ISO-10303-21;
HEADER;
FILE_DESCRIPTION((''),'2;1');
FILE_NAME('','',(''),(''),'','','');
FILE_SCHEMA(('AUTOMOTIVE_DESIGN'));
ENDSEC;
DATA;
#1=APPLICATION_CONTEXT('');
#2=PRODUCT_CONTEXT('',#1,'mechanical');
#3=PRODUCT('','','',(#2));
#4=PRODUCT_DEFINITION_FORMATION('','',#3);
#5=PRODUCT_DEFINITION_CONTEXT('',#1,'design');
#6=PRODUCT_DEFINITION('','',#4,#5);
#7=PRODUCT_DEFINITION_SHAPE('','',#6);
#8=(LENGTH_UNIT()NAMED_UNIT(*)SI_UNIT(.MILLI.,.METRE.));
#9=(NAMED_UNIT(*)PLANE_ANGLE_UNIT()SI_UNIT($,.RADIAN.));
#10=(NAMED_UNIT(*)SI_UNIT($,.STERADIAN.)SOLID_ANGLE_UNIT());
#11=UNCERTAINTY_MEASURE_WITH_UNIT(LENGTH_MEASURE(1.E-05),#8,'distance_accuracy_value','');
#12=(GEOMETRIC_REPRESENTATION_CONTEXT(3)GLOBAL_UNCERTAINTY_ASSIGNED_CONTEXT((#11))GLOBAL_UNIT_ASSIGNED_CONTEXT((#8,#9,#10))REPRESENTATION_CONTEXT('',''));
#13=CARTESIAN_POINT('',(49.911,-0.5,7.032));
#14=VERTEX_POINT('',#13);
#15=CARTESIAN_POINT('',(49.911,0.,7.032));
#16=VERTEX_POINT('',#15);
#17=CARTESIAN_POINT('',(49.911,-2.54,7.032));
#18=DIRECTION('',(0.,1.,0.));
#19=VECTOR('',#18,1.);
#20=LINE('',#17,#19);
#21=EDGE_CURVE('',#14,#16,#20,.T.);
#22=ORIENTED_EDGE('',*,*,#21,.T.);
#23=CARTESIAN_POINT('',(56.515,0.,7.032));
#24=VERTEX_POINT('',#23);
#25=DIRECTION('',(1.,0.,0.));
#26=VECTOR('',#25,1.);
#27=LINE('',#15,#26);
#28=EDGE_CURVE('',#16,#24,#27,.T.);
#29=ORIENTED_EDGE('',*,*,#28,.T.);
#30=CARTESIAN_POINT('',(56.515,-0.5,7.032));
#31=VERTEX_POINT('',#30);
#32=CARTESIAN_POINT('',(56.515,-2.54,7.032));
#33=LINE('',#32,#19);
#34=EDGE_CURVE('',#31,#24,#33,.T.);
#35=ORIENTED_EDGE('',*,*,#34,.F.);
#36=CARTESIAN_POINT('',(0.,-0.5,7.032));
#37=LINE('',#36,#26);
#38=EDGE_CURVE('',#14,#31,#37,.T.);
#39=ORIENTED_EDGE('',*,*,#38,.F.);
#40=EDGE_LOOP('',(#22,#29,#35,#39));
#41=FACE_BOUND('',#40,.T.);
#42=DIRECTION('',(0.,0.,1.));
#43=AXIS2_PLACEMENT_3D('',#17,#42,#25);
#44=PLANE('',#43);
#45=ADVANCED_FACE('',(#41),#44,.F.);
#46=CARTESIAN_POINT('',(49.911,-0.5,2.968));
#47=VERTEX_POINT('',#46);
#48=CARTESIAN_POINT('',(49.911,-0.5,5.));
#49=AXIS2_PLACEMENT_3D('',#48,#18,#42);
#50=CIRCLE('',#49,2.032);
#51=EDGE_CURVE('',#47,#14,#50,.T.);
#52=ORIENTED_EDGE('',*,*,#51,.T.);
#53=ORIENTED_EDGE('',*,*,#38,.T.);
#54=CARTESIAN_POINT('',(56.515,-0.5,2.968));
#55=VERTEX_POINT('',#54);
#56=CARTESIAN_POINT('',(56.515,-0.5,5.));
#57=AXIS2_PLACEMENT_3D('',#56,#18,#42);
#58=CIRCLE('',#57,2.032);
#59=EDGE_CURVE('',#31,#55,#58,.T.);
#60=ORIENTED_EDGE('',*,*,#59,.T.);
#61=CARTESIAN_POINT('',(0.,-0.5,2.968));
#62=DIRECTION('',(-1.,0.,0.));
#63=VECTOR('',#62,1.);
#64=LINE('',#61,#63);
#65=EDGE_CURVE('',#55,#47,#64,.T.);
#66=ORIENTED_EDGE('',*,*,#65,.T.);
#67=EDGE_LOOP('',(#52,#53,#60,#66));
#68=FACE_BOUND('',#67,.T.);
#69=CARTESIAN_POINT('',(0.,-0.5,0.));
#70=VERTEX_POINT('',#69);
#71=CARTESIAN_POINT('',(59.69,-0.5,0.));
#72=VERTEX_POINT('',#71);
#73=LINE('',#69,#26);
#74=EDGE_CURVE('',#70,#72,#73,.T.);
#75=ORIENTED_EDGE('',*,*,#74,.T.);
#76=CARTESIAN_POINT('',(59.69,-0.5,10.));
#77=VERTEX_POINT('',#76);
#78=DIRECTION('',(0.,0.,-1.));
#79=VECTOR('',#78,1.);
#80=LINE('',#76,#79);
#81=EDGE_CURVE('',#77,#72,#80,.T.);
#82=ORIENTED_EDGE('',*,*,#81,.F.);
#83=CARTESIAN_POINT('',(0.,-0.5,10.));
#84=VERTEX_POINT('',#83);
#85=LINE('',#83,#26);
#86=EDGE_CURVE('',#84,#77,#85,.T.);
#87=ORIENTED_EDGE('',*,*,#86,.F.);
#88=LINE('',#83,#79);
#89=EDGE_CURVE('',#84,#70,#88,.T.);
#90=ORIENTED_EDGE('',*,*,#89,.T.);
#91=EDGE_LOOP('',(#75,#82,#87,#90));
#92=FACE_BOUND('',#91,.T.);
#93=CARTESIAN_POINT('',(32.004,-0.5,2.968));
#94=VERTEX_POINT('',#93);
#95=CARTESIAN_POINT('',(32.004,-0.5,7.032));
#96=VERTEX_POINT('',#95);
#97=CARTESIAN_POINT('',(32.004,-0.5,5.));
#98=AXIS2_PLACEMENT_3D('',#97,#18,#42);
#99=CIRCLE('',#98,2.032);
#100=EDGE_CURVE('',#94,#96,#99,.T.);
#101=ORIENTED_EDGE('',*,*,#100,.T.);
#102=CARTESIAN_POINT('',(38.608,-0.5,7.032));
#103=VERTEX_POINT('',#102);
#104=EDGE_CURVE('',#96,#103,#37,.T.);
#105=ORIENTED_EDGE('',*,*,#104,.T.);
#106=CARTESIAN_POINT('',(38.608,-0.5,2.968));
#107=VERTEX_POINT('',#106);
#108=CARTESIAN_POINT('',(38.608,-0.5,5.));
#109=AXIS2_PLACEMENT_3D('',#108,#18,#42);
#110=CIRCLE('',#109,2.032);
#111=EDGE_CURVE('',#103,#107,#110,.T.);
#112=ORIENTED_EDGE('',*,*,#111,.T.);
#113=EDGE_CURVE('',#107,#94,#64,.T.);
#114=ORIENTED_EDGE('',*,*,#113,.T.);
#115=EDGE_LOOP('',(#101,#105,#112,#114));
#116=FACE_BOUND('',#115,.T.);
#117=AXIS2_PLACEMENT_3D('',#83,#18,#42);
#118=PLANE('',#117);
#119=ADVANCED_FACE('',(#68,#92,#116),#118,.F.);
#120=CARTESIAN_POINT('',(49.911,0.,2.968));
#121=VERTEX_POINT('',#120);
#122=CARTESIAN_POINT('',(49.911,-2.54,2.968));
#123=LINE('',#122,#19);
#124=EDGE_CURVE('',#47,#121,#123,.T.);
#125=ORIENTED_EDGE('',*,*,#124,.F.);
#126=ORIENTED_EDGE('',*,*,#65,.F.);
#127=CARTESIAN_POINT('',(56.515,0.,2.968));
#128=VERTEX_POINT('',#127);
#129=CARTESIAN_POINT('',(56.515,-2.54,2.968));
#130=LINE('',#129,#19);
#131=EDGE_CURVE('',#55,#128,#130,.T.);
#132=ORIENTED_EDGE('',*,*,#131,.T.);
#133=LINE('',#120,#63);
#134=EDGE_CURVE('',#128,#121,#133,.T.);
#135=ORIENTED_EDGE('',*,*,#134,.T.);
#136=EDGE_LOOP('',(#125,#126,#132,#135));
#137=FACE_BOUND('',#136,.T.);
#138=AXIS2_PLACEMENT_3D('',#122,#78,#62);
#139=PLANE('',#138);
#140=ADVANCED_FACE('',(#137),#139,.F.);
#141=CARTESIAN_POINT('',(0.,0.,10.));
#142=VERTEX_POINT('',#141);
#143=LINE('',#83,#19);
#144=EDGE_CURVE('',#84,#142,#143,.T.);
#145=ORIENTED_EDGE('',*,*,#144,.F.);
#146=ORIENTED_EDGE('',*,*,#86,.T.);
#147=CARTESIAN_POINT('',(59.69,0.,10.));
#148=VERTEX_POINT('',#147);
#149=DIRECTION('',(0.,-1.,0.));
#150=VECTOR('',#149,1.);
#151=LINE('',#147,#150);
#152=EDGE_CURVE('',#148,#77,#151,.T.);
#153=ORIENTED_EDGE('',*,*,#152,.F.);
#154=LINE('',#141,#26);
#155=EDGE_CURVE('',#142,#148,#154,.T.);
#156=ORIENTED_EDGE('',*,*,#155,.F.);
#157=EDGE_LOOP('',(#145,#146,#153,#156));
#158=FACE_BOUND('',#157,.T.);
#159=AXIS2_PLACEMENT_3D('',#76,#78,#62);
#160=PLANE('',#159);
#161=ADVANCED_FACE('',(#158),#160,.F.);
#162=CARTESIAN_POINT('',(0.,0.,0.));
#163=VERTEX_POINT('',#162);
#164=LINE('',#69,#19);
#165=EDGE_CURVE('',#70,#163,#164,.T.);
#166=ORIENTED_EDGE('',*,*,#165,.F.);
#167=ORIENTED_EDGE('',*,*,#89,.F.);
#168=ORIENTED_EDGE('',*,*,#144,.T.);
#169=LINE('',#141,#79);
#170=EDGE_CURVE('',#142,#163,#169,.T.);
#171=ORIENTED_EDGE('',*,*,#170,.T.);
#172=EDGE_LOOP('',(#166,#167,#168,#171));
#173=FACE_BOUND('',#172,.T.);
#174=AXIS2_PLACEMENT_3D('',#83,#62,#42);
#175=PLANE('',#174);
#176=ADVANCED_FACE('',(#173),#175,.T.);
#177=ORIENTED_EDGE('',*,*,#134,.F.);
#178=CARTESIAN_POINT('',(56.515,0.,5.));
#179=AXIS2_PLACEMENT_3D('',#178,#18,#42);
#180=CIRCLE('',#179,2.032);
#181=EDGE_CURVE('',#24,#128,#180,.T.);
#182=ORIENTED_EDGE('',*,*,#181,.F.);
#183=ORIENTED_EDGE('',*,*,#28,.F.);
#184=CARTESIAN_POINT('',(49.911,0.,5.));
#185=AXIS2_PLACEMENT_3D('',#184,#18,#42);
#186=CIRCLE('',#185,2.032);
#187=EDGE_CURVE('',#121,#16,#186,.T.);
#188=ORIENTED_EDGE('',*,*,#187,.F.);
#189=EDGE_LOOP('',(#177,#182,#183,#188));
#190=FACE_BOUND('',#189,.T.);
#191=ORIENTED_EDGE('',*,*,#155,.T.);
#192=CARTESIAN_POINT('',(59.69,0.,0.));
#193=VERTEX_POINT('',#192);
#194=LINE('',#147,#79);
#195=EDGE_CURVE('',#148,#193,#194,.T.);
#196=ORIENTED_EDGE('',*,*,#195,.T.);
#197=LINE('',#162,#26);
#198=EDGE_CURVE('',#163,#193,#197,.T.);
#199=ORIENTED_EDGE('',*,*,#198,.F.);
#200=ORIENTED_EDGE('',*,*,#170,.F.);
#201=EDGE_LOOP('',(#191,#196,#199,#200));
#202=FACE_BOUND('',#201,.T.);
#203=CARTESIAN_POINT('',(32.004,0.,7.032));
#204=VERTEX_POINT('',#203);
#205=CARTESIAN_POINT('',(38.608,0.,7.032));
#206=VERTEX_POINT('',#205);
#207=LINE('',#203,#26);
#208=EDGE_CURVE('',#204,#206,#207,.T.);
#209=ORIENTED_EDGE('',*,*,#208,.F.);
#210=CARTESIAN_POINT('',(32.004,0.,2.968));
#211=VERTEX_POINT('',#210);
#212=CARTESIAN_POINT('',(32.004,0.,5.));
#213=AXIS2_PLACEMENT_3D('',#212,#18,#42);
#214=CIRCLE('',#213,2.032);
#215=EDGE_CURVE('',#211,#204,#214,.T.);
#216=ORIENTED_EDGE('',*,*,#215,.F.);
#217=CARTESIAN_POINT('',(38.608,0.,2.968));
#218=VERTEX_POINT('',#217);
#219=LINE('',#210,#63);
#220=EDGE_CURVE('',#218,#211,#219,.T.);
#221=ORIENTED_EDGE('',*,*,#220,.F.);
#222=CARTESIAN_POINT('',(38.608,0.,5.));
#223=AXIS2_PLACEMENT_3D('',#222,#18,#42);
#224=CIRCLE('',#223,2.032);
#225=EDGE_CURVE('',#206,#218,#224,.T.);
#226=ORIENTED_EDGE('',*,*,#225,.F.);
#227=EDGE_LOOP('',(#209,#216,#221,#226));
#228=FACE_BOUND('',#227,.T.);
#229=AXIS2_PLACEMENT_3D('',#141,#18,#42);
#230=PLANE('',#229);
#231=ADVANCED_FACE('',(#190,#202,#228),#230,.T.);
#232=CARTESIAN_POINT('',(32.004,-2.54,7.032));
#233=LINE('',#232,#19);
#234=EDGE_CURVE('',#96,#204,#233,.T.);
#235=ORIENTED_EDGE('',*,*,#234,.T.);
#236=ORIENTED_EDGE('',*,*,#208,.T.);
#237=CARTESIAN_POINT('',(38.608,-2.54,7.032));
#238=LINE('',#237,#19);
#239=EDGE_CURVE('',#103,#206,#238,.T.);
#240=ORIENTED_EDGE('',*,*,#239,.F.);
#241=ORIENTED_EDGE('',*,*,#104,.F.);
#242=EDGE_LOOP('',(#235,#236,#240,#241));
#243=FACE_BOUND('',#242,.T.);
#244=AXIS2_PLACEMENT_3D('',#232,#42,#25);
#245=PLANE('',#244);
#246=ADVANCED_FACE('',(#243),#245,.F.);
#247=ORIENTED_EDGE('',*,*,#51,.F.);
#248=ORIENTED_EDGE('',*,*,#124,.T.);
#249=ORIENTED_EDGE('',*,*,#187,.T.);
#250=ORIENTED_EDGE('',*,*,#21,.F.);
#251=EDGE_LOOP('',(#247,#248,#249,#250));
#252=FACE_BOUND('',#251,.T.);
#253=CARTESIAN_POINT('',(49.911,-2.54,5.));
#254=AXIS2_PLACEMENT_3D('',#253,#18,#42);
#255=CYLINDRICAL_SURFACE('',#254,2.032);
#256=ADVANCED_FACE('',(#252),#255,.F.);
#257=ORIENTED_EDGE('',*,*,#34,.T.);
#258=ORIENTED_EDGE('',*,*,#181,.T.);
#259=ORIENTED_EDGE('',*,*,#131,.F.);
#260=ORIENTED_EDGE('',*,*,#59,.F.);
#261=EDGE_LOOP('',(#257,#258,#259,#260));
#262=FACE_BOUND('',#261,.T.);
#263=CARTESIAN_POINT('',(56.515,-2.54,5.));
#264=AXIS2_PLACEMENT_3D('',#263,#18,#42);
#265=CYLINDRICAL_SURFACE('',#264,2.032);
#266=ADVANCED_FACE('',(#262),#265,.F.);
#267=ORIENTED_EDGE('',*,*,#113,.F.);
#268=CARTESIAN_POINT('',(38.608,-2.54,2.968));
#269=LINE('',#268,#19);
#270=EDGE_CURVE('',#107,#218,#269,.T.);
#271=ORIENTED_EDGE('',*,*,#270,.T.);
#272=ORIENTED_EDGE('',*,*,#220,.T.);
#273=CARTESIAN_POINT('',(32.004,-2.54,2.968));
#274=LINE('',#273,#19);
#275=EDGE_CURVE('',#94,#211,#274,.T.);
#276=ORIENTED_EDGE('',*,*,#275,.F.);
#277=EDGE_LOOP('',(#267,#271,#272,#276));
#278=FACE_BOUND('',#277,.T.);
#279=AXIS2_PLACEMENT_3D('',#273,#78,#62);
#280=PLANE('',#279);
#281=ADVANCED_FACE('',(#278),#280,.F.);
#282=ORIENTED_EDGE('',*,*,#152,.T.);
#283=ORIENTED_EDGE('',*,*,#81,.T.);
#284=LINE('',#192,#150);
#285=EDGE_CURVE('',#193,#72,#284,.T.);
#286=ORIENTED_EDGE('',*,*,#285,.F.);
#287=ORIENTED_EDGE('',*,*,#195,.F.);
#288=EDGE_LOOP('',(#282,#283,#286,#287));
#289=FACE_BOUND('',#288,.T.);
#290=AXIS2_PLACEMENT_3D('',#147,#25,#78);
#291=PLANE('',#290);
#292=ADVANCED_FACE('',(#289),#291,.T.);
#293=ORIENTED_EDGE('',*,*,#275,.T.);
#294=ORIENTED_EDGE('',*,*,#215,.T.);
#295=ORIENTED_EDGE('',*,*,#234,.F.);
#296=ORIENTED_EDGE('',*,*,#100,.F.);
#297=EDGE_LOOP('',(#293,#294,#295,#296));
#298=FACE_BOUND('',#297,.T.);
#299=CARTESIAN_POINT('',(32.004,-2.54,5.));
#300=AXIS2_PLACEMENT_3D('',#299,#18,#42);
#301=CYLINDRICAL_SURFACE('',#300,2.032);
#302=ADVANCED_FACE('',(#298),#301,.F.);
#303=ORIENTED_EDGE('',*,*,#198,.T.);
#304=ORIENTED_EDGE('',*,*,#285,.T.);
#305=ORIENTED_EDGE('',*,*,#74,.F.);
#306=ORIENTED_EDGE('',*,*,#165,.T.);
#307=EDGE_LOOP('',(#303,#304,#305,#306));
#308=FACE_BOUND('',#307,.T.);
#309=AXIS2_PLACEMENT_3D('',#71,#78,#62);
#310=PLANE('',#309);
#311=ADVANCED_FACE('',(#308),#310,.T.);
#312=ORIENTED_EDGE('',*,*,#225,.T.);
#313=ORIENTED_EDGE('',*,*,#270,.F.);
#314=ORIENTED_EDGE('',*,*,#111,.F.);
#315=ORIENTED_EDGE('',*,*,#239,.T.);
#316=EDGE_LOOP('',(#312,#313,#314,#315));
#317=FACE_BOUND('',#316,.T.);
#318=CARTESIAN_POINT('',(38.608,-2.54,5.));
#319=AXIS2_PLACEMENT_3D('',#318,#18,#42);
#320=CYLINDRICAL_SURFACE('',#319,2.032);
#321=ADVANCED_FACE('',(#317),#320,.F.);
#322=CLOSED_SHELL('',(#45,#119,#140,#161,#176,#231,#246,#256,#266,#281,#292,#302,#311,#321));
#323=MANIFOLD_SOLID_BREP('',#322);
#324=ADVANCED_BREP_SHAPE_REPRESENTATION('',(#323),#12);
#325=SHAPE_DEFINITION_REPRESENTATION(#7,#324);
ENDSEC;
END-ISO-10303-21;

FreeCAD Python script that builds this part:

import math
import FreeCAD as App
import Part
import Sketcher

V = App.Vector
Q = App.Units.Quantity

doc = App.newDocument("Part")
params = doc.addObject("Spreadsheet::Sheet", "Params")
for row, (alias, value) in enumerate([
    ("sketch1_width", "2.35 in"),
    ("pad1_length", "10 mm"),
    ("sketch2_radius", "0.08 in"),
    ("sketch2_width", "2.35 in"),
    ("sketch2_width2", "0.26 in"),
    ("pocket1_length", "0.1 in"),
], start=1):
    params.set(f"A{row}", alias)
    params.set(f"B{row}", "=" + value)
    params.setAlias(f"B{row}", alias)

body = doc.addObject("PartDesign::Body", "Body")

sketch1 = body.newObject("Sketcher::SketchObject", "Sketch")
sketch1.AttachmentSupport = (doc.getObject("XY_Plane"), [""])
sketch1.MapMode = "FlatFace"
sketch1.addGeometry([
    Part.LineSegment(V(0, 0, 0), V(0, -0.5, 0)),
    Part.LineSegment(V(0, -0.5, 0), V(59.7, -0.5, 0)),
    Part.LineSegment(V(59.7, -0.5, 0), V(59.7, 0, 0)),
    Part.LineSegment(V(59.7, 0, 0), V(0, 0, 0)),
], False)
sketch1.addConstraint([
    Sketcher.Constraint("Coincident", 0, 2, 1, 1),
    Sketcher.Constraint("Coincident", 1, 2, 2, 1),
    Sketcher.Constraint("Coincident", 2, 2, 3, 1),
    Sketcher.Constraint("Coincident", 3, 2, 0, 1),
    Sketcher.Constraint("Vertical", 0),
    Sketcher.Constraint("Horizontal", 1),
    Sketcher.Constraint("Vertical", 2),
    Sketcher.Constraint("Horizontal", 3),
    Sketcher.Constraint("Coincident", 3, 2, -1, 1),
    Sketcher.Constraint("DistanceX", 1, 1, 1, 2, Q("2.35 in")),
    Sketcher.Constraint("DistanceY", 0, 2, 0, 1, 0.5),
])
sketch1.setExpression("Constraints[9]", "Params.sketch1_width")
pad1 = body.newObject("PartDesign::Pad", "Pad")
pad1.Profile = sketch1
pad1.setExpression("Length", "Params.pad1_length")

sketch2 = body.newObject("Sketcher::SketchObject", "Sketch001")
sketch2.AttachmentSupport = (doc.getObject("XZ_Plane"), [""])
sketch2.MapMode = "FlatFace"
sketch2.addGeometry([
    Part.LineSegment(V(-7.1, -7.1, 0), V(-7.1, 17.1, 0)),
    Part.LineSegment(V(-7.1, 17.1, 0), V(66.7, 17.1, 0)),
    Part.LineSegment(V(66.7, 17.1, 0), V(66.7, -7.1, 0)),
    Part.LineSegment(V(66.7, -7.1, 0), V(-7.1, -7.1, 0)),
    Part.LineSegment(V(59.7, 10, 0), V(0, 10, 0)),
    Part.LineSegment(V(0, 10, 0), V(0, 0, 0)),
    Part.LineSegment(V(0, 0, 0), V(59.7, 0, 0)),
    Part.LineSegment(V(59.7, 0, 0), V(59.7, 10, 0)),
    Part.LineSegment(V(38.6, 3, 0), V(32, 3, 0)),
    Part.ArcOfCircle(Part.Circle(V(32, 5, 0), V(0, 0, 1), 2), math.radians(90), math.radians(270)),
    Part.LineSegment(V(32, 7, 0), V(38.6, 7, 0)),
    Part.ArcOfCircle(Part.Circle(V(38.6, 5, 0), V(0, 0, 1), 2), math.radians(-90), math.radians(90)),
    Part.LineSegment(V(56.5, 3, 0), V(49.9, 3, 0)),
    Part.ArcOfCircle(Part.Circle(V(49.9, 5, 0), V(0, 0, 1), 2), math.radians(90), math.radians(270)),
    Part.LineSegment(V(49.9, 7, 0), V(56.5, 7, 0)),
    Part.ArcOfCircle(Part.Circle(V(56.5, 5, 0), V(0, 0, 1), 2), math.radians(-90), math.radians(90)),
], False)
sketch2.addConstraint([
    Sketcher.Constraint("Coincident", 0, 2, 1, 1),
    Sketcher.Constraint("Coincident", 1, 2, 2, 1),
    Sketcher.Constraint("Coincident", 2, 2, 3, 1),
    Sketcher.Constraint("Coincident", 3, 2, 0, 1),
    Sketcher.Constraint("Coincident", 4, 2, 5, 1),
    Sketcher.Constraint("Coincident", 5, 2, 6, 1),
    Sketcher.Constraint("Coincident", 6, 2, 7, 1),
    Sketcher.Constraint("Coincident", 7, 2, 4, 1),
    Sketcher.Constraint("Tangent", 8, 2, 9, 2),
    Sketcher.Constraint("Tangent", 9, 1, 10, 1),
    Sketcher.Constraint("Tangent", 10, 2, 11, 2),
    Sketcher.Constraint("Tangent", 11, 1, 8, 1),
    Sketcher.Constraint("Tangent", 12, 2, 13, 2),
    Sketcher.Constraint("Tangent", 13, 1, 14, 1),
    Sketcher.Constraint("Tangent", 14, 2, 15, 2),
    Sketcher.Constraint("Tangent", 15, 1, 12, 1),
    Sketcher.Constraint("Vertical", 0),
    Sketcher.Constraint("Horizontal", 1),
    Sketcher.Constraint("Vertical", 2),
    Sketcher.Constraint("Horizontal", 3),
    Sketcher.Constraint("Horizontal", 4),
    Sketcher.Constraint("Vertical", 5),
    Sketcher.Constraint("Horizontal", 6),
    Sketcher.Constraint("Vertical", 7),
    Sketcher.Constraint("Horizontal", 8),
    Sketcher.Constraint("Horizontal", 10),
    Sketcher.Constraint("Horizontal", 12),
    Sketcher.Constraint("Horizontal", 14),
    Sketcher.Constraint("Coincident", 5, 2, -1, 1),
    Sketcher.Constraint("Equal", 11, 13),
    Sketcher.Constraint("Horizontal", 11, 3, 13, 3),
    Sketcher.Constraint("Equal", 10, 12),
    Sketcher.Constraint("Radius", 9, Q("0.08 in")),
    Sketcher.Constraint("DistanceX", 4, 2, 4, 1, Q("2.35 in")),
    Sketcher.Constraint("DistanceX", 8, 2, 8, 1, Q("0.26 in")),
    Sketcher.Constraint("DistanceX", -1, 1, 9, 3, Q("1.26 in")),
    Sketcher.Constraint("DistanceX", -1, 1, 13, 3, Q("1.965 in")),
    Sketcher.Constraint("DistanceX", 1, 1, 1, 2, 73.794),
    Sketcher.Constraint("DistanceY", 0, 1, 0, 2, 24.104),
    Sketcher.Constraint("DistanceY", 5, 2, 5, 1, 10.0),
    Sketcher.Constraint("DistanceY", -1, 1, 9, 3, 5.0),
    Sketcher.Constraint("DistanceX", 0, 2, -1, 1, 7.052),
    Sketcher.Constraint("DistanceY", -1, 1, 0, 2, 17.052),
])
sketch2.setExpression("Constraints[32]", "Params.sketch2_radius")
sketch2.setExpression("Constraints[33]", "Params.sketch2_width")
sketch2.setExpression("Constraints[34]", "Params.sketch2_width2")
pocket1 = body.newObject("PartDesign::Pocket", "Pocket")
pocket1.Profile = sketch2
pocket1.setExpression("Length", "Params.pocket1_length")
pocket1.Reversed = True

doc.recompute()
